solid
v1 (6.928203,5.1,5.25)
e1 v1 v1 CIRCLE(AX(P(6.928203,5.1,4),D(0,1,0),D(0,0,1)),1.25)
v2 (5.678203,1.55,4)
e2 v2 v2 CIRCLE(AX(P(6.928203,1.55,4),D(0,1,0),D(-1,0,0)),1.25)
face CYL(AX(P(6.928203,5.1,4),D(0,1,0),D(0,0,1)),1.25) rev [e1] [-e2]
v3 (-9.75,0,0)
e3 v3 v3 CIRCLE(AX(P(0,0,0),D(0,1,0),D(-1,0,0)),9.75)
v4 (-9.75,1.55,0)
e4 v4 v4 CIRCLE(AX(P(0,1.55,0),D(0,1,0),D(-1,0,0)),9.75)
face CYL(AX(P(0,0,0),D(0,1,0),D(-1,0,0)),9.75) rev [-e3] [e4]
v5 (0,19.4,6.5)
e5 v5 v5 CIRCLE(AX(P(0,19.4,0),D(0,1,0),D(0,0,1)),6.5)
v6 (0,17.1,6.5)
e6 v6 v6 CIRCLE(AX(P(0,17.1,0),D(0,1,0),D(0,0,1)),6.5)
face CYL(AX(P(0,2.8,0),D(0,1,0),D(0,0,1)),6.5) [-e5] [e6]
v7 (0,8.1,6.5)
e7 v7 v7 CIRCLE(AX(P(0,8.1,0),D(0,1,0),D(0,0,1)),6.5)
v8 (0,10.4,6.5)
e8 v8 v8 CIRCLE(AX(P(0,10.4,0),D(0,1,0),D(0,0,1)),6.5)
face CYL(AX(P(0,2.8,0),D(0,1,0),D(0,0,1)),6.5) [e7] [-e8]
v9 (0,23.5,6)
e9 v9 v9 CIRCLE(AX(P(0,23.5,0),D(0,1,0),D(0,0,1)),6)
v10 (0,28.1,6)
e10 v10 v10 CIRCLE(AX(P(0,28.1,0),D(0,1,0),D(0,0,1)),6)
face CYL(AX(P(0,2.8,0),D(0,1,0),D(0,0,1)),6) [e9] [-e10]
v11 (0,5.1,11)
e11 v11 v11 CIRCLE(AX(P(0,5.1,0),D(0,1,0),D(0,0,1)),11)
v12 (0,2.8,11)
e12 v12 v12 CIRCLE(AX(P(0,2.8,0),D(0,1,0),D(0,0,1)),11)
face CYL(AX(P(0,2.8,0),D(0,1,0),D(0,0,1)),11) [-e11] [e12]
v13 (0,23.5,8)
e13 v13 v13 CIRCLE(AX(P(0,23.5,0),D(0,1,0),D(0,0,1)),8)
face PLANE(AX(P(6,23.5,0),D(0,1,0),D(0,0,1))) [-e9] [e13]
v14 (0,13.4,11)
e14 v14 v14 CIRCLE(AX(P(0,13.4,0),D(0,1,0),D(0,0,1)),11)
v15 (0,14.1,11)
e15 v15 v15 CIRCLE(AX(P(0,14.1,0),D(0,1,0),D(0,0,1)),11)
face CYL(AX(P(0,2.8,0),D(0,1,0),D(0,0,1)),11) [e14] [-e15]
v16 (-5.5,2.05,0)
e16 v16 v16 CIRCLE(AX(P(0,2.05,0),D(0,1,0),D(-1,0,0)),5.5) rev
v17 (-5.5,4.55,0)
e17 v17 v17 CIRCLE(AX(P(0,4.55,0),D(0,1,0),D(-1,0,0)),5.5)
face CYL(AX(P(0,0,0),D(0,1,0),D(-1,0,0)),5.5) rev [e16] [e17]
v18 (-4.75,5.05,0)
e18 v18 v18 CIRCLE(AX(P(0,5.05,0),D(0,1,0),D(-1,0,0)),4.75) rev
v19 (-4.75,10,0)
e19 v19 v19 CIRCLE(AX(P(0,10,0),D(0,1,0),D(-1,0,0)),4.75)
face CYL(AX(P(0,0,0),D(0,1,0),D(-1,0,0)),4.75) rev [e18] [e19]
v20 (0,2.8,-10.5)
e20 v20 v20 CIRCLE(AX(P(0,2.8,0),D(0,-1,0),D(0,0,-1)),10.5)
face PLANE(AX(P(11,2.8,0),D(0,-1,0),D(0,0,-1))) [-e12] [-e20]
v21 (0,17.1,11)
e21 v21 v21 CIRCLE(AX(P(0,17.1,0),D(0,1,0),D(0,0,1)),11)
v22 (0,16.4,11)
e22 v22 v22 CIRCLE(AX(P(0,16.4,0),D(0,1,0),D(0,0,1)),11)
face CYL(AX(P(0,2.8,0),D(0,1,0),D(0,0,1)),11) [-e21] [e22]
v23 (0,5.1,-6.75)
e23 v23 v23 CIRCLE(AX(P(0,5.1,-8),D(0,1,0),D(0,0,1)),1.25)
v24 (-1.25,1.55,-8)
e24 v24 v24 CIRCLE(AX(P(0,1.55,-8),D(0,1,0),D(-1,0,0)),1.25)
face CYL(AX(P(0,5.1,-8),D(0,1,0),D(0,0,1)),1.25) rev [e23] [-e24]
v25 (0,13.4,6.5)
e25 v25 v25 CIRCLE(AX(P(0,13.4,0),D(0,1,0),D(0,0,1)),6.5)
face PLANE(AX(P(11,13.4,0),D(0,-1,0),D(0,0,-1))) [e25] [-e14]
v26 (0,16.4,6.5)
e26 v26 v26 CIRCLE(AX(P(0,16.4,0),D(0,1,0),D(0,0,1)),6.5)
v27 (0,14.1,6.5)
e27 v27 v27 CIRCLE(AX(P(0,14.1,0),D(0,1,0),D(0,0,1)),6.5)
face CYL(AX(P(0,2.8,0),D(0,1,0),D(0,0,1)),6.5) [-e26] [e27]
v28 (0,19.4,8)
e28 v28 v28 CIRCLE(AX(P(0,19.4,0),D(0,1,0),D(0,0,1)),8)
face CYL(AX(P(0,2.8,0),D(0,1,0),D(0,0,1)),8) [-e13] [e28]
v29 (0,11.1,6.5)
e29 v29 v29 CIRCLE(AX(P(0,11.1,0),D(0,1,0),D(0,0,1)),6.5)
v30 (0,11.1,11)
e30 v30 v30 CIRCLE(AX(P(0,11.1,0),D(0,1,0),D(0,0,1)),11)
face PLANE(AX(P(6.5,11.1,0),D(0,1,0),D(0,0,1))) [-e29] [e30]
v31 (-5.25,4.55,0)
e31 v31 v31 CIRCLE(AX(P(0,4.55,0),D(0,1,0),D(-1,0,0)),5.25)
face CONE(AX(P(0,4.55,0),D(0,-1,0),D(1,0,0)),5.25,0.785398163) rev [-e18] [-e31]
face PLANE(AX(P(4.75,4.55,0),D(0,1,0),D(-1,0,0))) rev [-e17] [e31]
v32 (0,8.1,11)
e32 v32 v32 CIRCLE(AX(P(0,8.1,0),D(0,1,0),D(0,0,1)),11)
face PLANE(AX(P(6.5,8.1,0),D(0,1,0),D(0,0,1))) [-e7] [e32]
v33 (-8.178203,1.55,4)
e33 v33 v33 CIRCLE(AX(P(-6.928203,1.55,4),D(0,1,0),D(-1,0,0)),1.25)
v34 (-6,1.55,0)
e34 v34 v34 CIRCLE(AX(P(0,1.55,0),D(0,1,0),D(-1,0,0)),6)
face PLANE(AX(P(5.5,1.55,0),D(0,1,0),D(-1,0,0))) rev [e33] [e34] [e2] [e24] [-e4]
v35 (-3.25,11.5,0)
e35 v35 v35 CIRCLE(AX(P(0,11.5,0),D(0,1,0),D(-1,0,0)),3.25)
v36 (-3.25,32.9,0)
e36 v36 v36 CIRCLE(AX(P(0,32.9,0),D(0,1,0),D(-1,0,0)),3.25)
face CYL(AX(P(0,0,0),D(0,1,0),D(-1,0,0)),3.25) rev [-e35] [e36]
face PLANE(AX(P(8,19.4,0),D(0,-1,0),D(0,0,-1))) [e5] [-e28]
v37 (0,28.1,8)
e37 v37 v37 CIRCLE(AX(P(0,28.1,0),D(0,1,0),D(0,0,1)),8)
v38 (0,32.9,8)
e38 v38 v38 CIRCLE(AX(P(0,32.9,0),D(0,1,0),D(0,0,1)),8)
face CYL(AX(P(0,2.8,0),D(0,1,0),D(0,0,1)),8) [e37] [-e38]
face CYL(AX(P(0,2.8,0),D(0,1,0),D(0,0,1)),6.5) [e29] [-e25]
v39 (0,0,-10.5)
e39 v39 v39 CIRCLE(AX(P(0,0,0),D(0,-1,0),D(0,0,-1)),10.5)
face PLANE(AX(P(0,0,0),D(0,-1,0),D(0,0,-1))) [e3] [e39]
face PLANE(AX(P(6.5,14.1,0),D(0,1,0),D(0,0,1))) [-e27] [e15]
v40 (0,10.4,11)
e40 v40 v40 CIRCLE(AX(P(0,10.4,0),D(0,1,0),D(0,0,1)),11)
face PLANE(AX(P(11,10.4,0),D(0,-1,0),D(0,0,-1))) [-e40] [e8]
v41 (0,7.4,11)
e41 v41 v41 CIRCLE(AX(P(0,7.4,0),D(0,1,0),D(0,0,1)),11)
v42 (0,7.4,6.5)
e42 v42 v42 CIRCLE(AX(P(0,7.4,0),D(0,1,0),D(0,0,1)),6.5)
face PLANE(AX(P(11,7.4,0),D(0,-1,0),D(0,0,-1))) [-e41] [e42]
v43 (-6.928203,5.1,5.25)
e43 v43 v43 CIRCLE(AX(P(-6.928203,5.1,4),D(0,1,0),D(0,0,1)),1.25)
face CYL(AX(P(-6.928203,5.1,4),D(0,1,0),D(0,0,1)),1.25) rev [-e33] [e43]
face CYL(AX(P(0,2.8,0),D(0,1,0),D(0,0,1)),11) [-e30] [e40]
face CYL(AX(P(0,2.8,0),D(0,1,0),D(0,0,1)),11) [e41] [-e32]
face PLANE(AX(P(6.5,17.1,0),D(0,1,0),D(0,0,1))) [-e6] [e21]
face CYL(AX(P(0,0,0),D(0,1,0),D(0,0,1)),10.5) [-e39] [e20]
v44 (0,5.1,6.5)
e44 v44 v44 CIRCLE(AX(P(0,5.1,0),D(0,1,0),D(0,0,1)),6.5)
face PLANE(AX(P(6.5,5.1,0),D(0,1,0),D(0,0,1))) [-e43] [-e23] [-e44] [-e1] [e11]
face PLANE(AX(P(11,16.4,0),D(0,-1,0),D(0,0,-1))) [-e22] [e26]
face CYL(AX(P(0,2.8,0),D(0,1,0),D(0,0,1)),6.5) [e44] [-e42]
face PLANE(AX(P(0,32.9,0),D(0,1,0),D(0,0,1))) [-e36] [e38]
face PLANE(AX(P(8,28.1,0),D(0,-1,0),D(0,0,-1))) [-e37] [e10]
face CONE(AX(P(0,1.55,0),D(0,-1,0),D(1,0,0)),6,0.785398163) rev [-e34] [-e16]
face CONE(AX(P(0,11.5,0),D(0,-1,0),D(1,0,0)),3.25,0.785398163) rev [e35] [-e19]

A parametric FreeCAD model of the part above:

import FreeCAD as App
import Part
import Sketcher
from FreeCAD import Vector
Q = App.Units.Quantity


def edges_at(feature, points):
    """Names of the edges that pass closest to the given points."""
    edges = feature.Shape.Edges
    near = lambda p: min(range(len(edges)), key=lambda i: edges[i].distToShape(Part.Vertex(*p))[0])
    return sorted({f"Edge{near(p) + 1}" for p in points})


def add_polygon(sketch, points):
    """Adds a closed chain of lines whose ends are joined by coincident constraints."""
    first, n = sketch.GeometryCount, len(points)
    for a, b in zip(points, points[1:] + points[:1]):
        sketch.addGeometry(Part.LineSegment(App.Vector(*a, 0), App.Vector(*b, 0)), False)
    for i in range(n):
        sketch.addConstraint(Sketcher.Constraint("Coincident", first + i, 2, first + (i + 1) % n, 1))

doc = App.newDocument("Part")
params = doc.addObject("Spreadsheet::Sheet", "Params")
for row, (alias, value) in enumerate([
    ("sketch1_width", "11 mm"),
    ("sketch1_width2", "8 mm"),
    ("sketch1_width3", "2 mm"),
    ("sketch1_width4", "1.5 mm"),
    ("sketch1_height", "30.1 mm"),
    ("revolution_angle", "360 deg"),
    ("sketch2_diameter", "21 mm"),
    ("pad1_length", "2.8 mm"),
    ("sketch3_height", "3 mm"),
    ("sketch3_height2", "32.9 mm"),
    ("sketch3_height3", "21.4 mm"),
    ("sketch3_width", "9.75 mm"),
    ("sketch3_width2", "0.75 mm"),
    ("groove_angle", "360 deg"),
    ("sketch4_width", "5.1 mm"),
    ("sketch4_height", "1.25 mm"),
    ("groove2_angle", "360 deg"),
    ("linearpattern_pitch", "13.856406 mm"),
    ("linearpattern2_pitch", "13.856406 mm"),
    ("chamfer_size", "0.5 mm"),
], start=1):
    params.set(f"A{row}", alias)
    params.set(f"B{row}", "=" + value)
    params.setAlias(f"B{row}", alias)

body = doc.addObject("PartDesign::Body", "Body")

# Sketch on XY plane
sketch1 = doc.addObject("Sketcher::SketchObject", "Sketch")
body.addObject(sketch1)
sketch1.AttachmentSupport = (doc.XY_Plane, [""])
sketch1.MapMode = "FlatFace"
add_polygon(sketch1, [(11, 2.8), (0, 2.8), (0, 32.9), (8, 32.9), (8, 28.1), (6, 28.1), (6, 23.5), (8, 23.5), (8, 19.4), (6.5, 19.4), (6.5, 17.1), (11, 17.1), (11, 16.4), (6.5, 16.4), (6.5, 14.1), (11, 14.1), (11, 13.4), (6.5, 13.4), (6.5, 11.1), (11, 11.1), (11, 10.4), (6.5, 10.4), (6.5, 8.1), (11, 8.1), (11, 7.4), (6.5, 7.4), (6.5, 5.1), (11, 5.1)])  # lines 0-27
sketch1.addConstraint([
    Sketcher.Constraint("Horizontal", 0),
    Sketcher.Constraint("Vertical", 1),
    Sketcher.Constraint("Horizontal", 2),
    Sketcher.Constraint("Vertical", 3),
    Sketcher.Constraint("Horizontal", 4),
    Sketcher.Constraint("Vertical", 5),
    Sketcher.Constraint("Horizontal", 6),
    Sketcher.Constraint("Vertical", 7),
    Sketcher.Constraint("Horizontal", 8),
    Sketcher.Constraint("Vertical", 9),
    Sketcher.Constraint("Horizontal", 10),
    Sketcher.Constraint("Vertical", 11),
    Sketcher.Constraint("Horizontal", 12),
    Sketcher.Constraint("Vertical", 13),
    Sketcher.Constraint("Horizontal", 14),
    Sketcher.Constraint("Vertical", 15),
    Sketcher.Constraint("Horizontal", 16),
    Sketcher.Constraint("Vertical", 17),
    Sketcher.Constraint("Horizontal", 18),
    Sketcher.Constraint("Vertical", 19),
    Sketcher.Constraint("Horizontal", 20),
    Sketcher.Constraint("Vertical", 21),
    Sketcher.Constraint("Horizontal", 22),
    Sketcher.Constraint("Vertical", 23),
    Sketcher.Constraint("Horizontal", 24),
    Sketcher.Constraint("Vertical", 25),
    Sketcher.Constraint("Horizontal", 26),
    Sketcher.Constraint("Vertical", 27),
    Sketcher.Constraint("PointOnObject", 0, 2, -2),
    Sketcher.Constraint("Vertical", 3, 2, 6, 2),
    Sketcher.Constraint("Vertical", 9, 2, 12, 2),
    Sketcher.Constraint("Vertical", 11, 2, 14, 2),
    Sketcher.Constraint("Vertical", 13, 2, 16, 2),
    Sketcher.Constraint("Vertical", 15, 2, 18, 2),
    Sketcher.Constraint("Vertical", 17, 2, 20, 2),
    Sketcher.Constraint("Vertical", 19, 2, 22, 2),
    Sketcher.Constraint("Vertical", 21, 2, 24, 2),
    Sketcher.Constraint("Vertical", 23, 2, 26, 2),
    Sketcher.Constraint("Equal", 9, 13),
    Sketcher.Constraint("Equal", 11, 15),
    Sketcher.Constraint("Equal", 13, 17),
    Sketcher.Constraint("Equal", 15, 19),
    Sketcher.Constraint("Equal", 17, 21),
    Sketcher.Constraint("Equal", 19, 23),
    Sketcher.Constraint("Equal", 21, 25),
    Sketcher.Constraint("Equal", 25, 27),
    Sketcher.Constraint("DistanceX", 0, 2, 0, 1, Q("11 mm")),
    Sketcher.Constraint("DistanceX", 2, 1, 2, 2, Q("8 mm")),
    Sketcher.Constraint("DistanceX", 4, 2, 4, 1, Q("2 mm")),
    Sketcher.Constraint("DistanceX", 8, 2, 8, 1, Q("1.5 mm")),
    Sketcher.Constraint("DistanceY", 1, 1, 1, 2, Q("30.1 mm")),
    Sketcher.Constraint("DistanceY", 3, 2, 3, 1, Q("4.8 mm")),
    Sketcher.Constraint("DistanceY", 5, 2, 5, 1, Q("4.6 mm")),
    Sketcher.Constraint("DistanceY", 7, 2, 7, 1, Q("4.1 mm")),
    Sketcher.Constraint("DistanceY", 9, 2, 9, 1, Q("2.3 mm")),
    Sketcher.Constraint("DistanceY", -1, 1, 0, 2, Q("2.8 mm")),
])
sketch1.setExpression("Constraints[74]", "Params.sketch1_width")
sketch1.setExpression("Constraints[75]", "Params.sketch1_width2")
sketch1.setExpression("Constraints[76]", "Params.sketch1_width3")
sketch1.setExpression("Constraints[77]", "Params.sketch1_width4")
sketch1.setExpression("Constraints[78]", "Params.sketch1_height")
revolution = doc.addObject("PartDesign::Revolution", "Revolution")
body.addObject(revolution)
revolution.Profile = sketch1
revolution.ReferenceAxis = (sketch1, ["V_Axis"])
revolution.setExpression("Angle", "Params.revolution_angle")

# Sketch on XZ plane
sketch2 = doc.addObject("Sketcher::SketchObject", "Sketch001")
body.addObject(sketch2)
sketch2.AttachmentSupport = (doc.XZ_Plane, [""])
sketch2.MapMode = "FlatFace"
sketch2.AttachmentOffset = App.Placement(Vector(0, 0, -2.8), App.Rotation())
sketch2.addGeometry(Part.Circle(Vector(0, 0, 0), Vector(0, 0, 1), 10), False)
sketch2.addConstraint([
    Sketcher.Constraint("Coincident", 0, 3, -1, 1),
    Sketcher.Constraint("Diameter", 0, Q("21 mm")),
])
sketch2.setExpression("Constraints[1]", "Params.sketch2_diameter")
pad1 = doc.addObject("PartDesign::Pad", "Pad")
body.addObject(pad1)
pad1.Profile = sketch2
pad1.setExpression("Length", "Params.pad1_length")

# Sketch on XY plane
sketch3 = doc.addObject("Sketcher::SketchObject", "Sketch002")
body.addObject(sketch3)
sketch3.AttachmentSupport = (doc.XY_Plane, [""])
sketch3.MapMode = "FlatFace"
add_polygon(sketch3, [(9.8, 0), (0, 0), (0, 32.9), (3.2, 32.9), (3.2, 11.5), (4.8, 10), (4.8, 4.5), (5.5, 4.5), (5.5, 1.6), (9.8, 1.6)])  # lines 0-9
sketch3.addConstraint([
    Sketcher.Constraint("Horizontal", 0),
    Sketcher.Constraint("Vertical", 1),
    Sketcher.Constraint("Horizontal", 2),
    Sketcher.Constraint("Vertical", 3),
    Sketcher.Constraint("Vertical", 5),
    Sketcher.Constraint("Horizontal", 6),
    Sketcher.Constraint("Vertical", 7),
    Sketcher.Constraint("Horizontal", 8),
    Sketcher.Constraint("Vertical", 9),
    Sketcher.Constraint("Coincident", 0, 2, -1, 1),
    Sketcher.Constraint("DistanceY", 7, 2, 7, 1, Q("3 mm")),
    Sketcher.Constraint("Angle", 4, Q("-45 deg")),
    Sketcher.Constraint("DistanceY", 1, 1, 1, 2, Q("32.9 mm")),
    Sketcher.Constraint("DistanceY", 3, 2, 3, 1, Q("21.4 mm")),
    Sketcher.Constraint("DistanceY", -1, 1, 4, 2, Q("10 mm")),
    Sketcher.Constraint("DistanceX", 5, 2, 8, 2, Q("5 mm")),
    Sketcher.Constraint("DistanceX", 0, 2, 0, 1, Q("9.75 mm")),
    Sketcher.Constraint("DistanceX", 6, 1, 6, 2, Q("0.75 mm")),
    Sketcher.Constraint("DistanceY", 5, 2, 5, 1, Q("5.45 mm")),
])
sketch3.setExpression("Constraints[20]", "Params.sketch3_height")
sketch3.setExpression("Constraints[22]", "Params.sketch3_height2")
sketch3.setExpression("Constraints[23]", "Params.sketch3_height3")
sketch3.setExpression("Constraints[26]", "Params.sketch3_width")
sketch3.setExpression("Constraints[27]", "Params.sketch3_width2")
groove = doc.addObject("PartDesign::Groove", "Groove")
body.addObject(groove)
groove.Profile = sketch3
groove.ReferenceAxis = (sketch3, ["V_Axis"])
groove.setExpression("Angle", "Params.groove_angle")

# Sketch on YZ plane
sketch4 = doc.addObject("Sketcher::SketchObject", "Sketch003")
body.addObject(sketch4)
sketch4.AttachmentSupport = (doc.YZ_Plane, [""])
sketch4.MapMode = "FlatFace"
sketch4.AttachmentOffset = App.Placement(Vector(0, 0, -6.928203), App.Rotation())
add_polygon(sketch4, [(0, 4), (5.1, 4), (5.1, 5.2), (0, 5.2)])  # lines 0-3
sketch4.addGeometry(Part.LineSegment(Vector(5.1, 4, 0), Vector(0, 4, 0)), True)  # axis
sketch4.addConstraint([
    Sketcher.Constraint("Horizontal", 0),
    Sketcher.Constraint("Vertical", 1),
    Sketcher.Constraint("Horizontal", 2),
    Sketcher.Constraint("Vertical", 3),
    Sketcher.Constraint("Horizontal", 4),
    Sketcher.Constraint("Coincident", 4, 1, 0, 2),
    Sketcher.Constraint("PointOnObject", 2, 2, -2),
    Sketcher.Constraint("PointOnObject", 4, 2, -2),
    Sketcher.Constraint("DistanceX", 0, 1, 0, 2, Q("5.1 mm")),
    Sketcher.Constraint("DistanceY", -1, 1, 0, 2, Q("4 mm")),
    Sketcher.Constraint("DistanceY", 1, 1, 1, 2, Q("1.25 mm")),
])
sketch4.setExpression("Constraints[12]", "Params.sketch4_width")
sketch4.setExpression("Constraints[14]", "Params.sketch4_height")
groove2 = doc.addObject("PartDesign::Groove", "Groove001")
body.addObject(groove2)
groove2.Profile = sketch4
groove2.ReferenceAxis = (sketch4, ["Axis0"])
groove2.setExpression("Angle", "Params.groove2_angle")
doc.recompute()

datumline = doc.addObject("PartDesign::Line", "DatumLine")
body.addObject(datumline)
datumline.Placement = App.Placement(Vector(0, 0, 0), App.Rotation(Vector(0, 0, 1), Vector(0.5, 0, -0.866025404)))
linearpattern = doc.addObject("PartDesign::LinearPattern", "LinearPattern")
body.addObject(linearpattern)
linearpattern.Originals = [groove2]
linearpattern.Direction = (datumline, [""])
linearpattern.Mode = "offset"
linearpattern.setExpression("Offset", "Params.linearpattern_pitch")
linearpattern.Occurrences = 2
body.Tip = linearpattern
doc.recompute()

linearpattern2 = doc.addObject("PartDesign::LinearPattern", "LinearPattern001")
body.addObject(linearpattern2)
linearpattern2.Originals = [groove2]
linearpattern2.Direction = (doc.X_Axis, [""])
linearpattern2.Mode = "offset"
linearpattern2.setExpression("Offset", "Params.linearpattern2_pitch")
linearpattern2.Occurrences = 2
body.Tip = linearpattern2
doc.recompute()

chamfer = doc.addObject("PartDesign::Chamfer", "Chamfer")
body.addObject(chamfer)
chamfer.Base = (linearpattern2, edges_at(linearpattern2, [(4.75, 4.55, 0), (5.5, 1.55, 0)]))
chamfer.setExpression("Size", "Params.chamfer_size")

doc.recompute()
